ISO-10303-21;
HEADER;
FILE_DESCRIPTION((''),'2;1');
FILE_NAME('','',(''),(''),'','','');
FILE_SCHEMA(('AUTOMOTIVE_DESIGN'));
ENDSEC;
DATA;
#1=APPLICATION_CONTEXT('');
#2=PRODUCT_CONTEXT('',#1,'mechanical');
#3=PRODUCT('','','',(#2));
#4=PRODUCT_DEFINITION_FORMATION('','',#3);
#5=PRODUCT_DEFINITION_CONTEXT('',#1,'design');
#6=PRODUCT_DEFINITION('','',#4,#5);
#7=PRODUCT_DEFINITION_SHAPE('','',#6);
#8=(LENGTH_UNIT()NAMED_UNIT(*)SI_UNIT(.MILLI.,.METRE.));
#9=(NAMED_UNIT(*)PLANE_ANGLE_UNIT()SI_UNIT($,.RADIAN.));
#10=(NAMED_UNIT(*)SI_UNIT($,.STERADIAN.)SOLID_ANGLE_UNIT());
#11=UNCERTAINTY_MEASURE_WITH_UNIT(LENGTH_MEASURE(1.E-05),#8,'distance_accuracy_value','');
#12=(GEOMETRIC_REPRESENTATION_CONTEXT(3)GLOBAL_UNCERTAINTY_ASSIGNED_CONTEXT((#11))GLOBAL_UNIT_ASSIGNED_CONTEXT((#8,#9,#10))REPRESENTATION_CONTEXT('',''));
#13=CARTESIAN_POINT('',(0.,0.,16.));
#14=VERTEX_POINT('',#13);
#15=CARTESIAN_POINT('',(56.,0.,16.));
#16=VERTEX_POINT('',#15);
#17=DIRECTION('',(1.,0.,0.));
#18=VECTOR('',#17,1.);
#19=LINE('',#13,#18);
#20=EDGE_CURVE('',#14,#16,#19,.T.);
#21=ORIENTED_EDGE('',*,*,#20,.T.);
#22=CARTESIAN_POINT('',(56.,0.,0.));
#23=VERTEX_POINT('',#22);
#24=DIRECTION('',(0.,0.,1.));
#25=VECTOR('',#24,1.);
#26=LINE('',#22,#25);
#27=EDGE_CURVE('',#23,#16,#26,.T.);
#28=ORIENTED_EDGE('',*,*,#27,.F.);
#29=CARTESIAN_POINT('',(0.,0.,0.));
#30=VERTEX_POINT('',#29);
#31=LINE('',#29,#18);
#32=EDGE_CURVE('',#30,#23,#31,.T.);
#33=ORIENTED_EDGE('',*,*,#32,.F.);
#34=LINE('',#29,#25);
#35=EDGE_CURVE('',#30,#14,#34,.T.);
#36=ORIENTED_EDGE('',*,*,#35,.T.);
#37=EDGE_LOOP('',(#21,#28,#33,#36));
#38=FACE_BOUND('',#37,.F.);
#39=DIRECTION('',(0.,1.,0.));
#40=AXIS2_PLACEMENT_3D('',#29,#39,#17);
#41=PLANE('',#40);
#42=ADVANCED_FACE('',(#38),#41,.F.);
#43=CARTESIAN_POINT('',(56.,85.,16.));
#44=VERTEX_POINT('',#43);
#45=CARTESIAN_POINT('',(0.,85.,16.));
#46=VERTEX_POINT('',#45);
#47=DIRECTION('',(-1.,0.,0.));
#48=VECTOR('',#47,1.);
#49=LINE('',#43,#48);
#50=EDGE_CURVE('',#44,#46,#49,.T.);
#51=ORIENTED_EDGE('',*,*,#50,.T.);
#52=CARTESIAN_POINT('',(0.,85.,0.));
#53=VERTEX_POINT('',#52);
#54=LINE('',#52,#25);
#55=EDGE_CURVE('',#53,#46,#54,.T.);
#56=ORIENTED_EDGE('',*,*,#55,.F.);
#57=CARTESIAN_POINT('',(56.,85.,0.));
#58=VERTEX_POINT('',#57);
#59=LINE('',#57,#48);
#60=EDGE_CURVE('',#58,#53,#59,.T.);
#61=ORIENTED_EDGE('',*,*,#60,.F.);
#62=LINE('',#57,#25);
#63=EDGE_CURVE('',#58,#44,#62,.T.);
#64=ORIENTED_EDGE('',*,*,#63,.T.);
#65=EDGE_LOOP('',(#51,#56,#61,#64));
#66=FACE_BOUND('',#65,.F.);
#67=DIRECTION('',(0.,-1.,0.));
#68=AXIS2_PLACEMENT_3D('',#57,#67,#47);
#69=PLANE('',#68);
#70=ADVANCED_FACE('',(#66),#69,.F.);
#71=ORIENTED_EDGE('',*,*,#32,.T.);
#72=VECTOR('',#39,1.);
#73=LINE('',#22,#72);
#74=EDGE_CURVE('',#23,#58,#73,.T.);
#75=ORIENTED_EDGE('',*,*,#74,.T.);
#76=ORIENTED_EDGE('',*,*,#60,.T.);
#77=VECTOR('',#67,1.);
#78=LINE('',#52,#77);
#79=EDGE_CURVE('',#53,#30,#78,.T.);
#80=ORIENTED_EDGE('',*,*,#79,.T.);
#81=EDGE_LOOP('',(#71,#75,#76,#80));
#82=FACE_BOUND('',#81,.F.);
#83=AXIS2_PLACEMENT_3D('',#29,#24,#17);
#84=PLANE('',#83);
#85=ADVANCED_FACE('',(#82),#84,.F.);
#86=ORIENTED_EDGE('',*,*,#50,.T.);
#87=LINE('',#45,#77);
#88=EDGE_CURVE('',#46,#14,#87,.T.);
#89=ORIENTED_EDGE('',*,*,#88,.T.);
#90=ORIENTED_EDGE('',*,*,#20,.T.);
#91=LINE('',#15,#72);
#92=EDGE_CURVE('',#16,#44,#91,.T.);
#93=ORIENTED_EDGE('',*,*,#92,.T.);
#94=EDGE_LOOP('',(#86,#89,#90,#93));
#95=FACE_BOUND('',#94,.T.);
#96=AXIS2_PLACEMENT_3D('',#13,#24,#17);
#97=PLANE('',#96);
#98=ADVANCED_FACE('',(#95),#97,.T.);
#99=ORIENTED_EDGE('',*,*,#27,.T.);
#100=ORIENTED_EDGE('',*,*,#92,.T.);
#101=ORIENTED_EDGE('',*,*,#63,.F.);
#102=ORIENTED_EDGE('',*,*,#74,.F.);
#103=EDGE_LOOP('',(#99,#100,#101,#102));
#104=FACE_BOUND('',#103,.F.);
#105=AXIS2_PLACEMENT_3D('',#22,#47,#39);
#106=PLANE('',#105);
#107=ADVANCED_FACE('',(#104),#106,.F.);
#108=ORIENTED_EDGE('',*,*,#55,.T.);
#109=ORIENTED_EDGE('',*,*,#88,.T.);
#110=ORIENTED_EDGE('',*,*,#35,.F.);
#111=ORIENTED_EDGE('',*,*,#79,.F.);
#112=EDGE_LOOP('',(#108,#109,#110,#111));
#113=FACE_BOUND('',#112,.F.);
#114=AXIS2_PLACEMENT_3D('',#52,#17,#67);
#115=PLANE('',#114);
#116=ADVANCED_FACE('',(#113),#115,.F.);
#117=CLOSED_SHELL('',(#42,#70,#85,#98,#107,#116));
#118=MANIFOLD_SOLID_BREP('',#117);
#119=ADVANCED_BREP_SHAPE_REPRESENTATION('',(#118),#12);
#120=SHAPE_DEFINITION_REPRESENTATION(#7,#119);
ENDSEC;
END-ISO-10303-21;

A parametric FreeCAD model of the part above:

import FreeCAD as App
import Part
import Sketcher

V = App.Vector
Q = App.Units.Quantity


def add_polygon(sketch, points):
    """Adds a closed chain of lines whose ends are joined by coincident constraints."""
    first, n = sketch.GeometryCount, len(points)
    for a, b in zip(points, points[1:] + points[:1]):
        sketch.addGeometry(Part.LineSegment(App.Vector(*a, 0), App.Vector(*b, 0)), False)
    for i in range(n):
        sketch.addConstraint(Sketcher.Constraint("Coincident", first + i, 2, first + (i + 1) % n, 1))

doc = App.newDocument("Part")
body = doc.addObject("PartDesign::Body", "Body")

sketch1 = doc.addObject("Sketcher::SketchObject", "Sketch")
body.addObject(sketch1)
sketch1.AttachmentSupport = (doc.XY_Plane, [""])
sketch1.MapMode = "FlatFace"
add_polygon(sketch1, [(0, 85), (0, 0), (56, 0), (56, 85)])
sketch1.addConstraint([
    Sketcher.Constraint("Vertical", 0),
    Sketcher.Constraint("Horizontal", 1),
    Sketcher.Constraint("Vertical", 2),
    Sketcher.Constraint("Horizontal", 3),
    Sketcher.Constraint("Coincident", 0, 2, -1, 1),
    Sketcher.Constraint("DistanceX", 1, 1, 1, 2, Q("56 mm")),
    Sketcher.Constraint("DistanceY", 0, 2, 0, 1, Q("85 mm")),
])
pad1 = doc.addObject("PartDesign::Pad", "Pad")
body.addObject(pad1)
pad1.Profile = sketch1
pad1.Length = 16

doc.recompute()
